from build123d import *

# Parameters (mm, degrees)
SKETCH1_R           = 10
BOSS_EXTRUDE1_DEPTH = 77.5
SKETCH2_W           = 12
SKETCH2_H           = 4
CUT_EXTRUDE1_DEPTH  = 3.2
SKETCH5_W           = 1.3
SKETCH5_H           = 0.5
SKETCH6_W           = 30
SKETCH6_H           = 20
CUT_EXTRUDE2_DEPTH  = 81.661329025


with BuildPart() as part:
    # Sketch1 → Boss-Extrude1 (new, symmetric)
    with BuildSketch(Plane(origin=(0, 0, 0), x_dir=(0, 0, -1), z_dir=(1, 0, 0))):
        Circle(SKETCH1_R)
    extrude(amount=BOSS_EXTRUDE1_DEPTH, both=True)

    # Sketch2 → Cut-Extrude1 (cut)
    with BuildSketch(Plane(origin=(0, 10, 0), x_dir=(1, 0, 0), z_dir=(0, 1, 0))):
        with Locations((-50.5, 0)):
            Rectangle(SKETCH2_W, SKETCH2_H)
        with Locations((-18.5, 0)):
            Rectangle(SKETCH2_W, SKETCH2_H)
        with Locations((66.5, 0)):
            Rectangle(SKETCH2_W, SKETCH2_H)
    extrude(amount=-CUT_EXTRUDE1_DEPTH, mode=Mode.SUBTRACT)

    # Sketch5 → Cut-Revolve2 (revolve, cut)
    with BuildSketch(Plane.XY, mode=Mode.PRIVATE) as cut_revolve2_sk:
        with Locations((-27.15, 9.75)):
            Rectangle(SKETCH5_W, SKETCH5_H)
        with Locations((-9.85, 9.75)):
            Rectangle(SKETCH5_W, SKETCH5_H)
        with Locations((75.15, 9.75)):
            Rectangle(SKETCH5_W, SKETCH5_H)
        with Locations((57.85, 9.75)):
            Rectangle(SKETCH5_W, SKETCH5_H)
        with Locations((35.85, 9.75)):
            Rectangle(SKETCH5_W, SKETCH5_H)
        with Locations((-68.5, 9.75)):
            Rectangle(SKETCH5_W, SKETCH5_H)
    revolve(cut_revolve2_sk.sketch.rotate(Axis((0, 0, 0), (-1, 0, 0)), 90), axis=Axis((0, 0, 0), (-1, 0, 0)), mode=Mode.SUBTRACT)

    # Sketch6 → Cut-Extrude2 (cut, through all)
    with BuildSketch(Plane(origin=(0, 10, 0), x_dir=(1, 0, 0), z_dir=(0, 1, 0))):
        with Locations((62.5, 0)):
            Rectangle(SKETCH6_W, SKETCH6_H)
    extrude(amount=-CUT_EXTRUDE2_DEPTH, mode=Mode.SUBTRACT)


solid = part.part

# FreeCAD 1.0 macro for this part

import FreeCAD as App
import Part
import Sketcher

V = App.Vector
Q = App.Units.Quantity

doc = App.newDocument("Part")
body = doc.addObject("PartDesign::Body", "Body")

sketch1 = body.newObject("Sketcher::SketchObject", "Sketch")
sketch1.AttachmentSupport = (doc.getObject("YZ_Plane"), [""])
sketch1.MapMode = "FlatFace"
sketch1.addGeometry(Part.Circle(V(0, 0, 0), V(0, 0, 1), 10), False)
sketch1.addConstraint([
    Sketcher.Constraint("Coincident", 0, 3, -1, 1),
    Sketcher.Constraint("Diameter", 0, Q("20 mm")),
])
pad1 = body.newObject("PartDesign::Pad", "Pad")
pad1.Profile = sketch1
pad1.Length = 155
pad1.Midplane = True

sketch2 = body.newObject("Sketcher::SketchObject", "Sketch001")
sketch2.AttachmentSupport = (doc.getObject("XZ_Plane"), [""])
sketch2.MapMode = "FlatFace"
sketch2.AttachmentOffset = App.Placement(V(0, 0, -10), App.Rotation())
sketch2.addGeometry([
    Part.LineSegment(V(-56.5, -2, 0), V(-56.5, 2, 0)),
    Part.LineSegment(V(-56.5, 2, 0), V(-44.5, 2, 0)),
    Part.LineSegment(V(-44.5, 2, 0), V(-44.5, -2, 0)),
    Part.LineSegment(V(-44.5, -2, 0), V(-56.5, -2, 0)),
    Part.LineSegment(V(-24.5, -2, 0), V(-24.5, 2, 0)),
    Part.LineSegment(V(-24.5, 2, 0), V(-12.5, 2, 0)),
    Part.LineSegment(V(-12.5, 2, 0), V(-12.5, -2, 0)),
    Part.LineSegment(V(-12.5, -2, 0), V(-24.5, -2, 0)),
    Part.LineSegment(V(60.5, -2, 0), V(60.5, 2, 0)),
    Part.LineSegment(V(60.5, 2, 0), V(72.5, 2, 0)),
    Part.LineSegment(V(72.5, 2, 0), V(72.5, -2, 0)),
    Part.LineSegment(V(72.5, -2, 0), V(60.5, -2, 0)),
], False)
sketch2.addConstraint([
    Sketcher.Constraint("Coincident", 0, 2, 1, 1),
    Sketcher.Constraint("Coincident", 1, 2, 2, 1),
    Sketcher.Constraint("Coincident", 2, 2, 3, 1),
    Sketcher.Constraint("Coincident", 3, 2, 0, 1),
    Sketcher.Constraint("Coincident", 4, 2, 5, 1),
    Sketcher.Constraint("Coincident", 5, 2, 6, 1),
    Sketcher.Constraint("Coincident", 6, 2, 7, 1),
    Sketcher.Constraint("Coincident", 7, 2, 4, 1),
    Sketcher.Constraint("Coincident", 8, 2, 9, 1),
    Sketcher.Constraint("Coincident", 9, 2, 10, 1),
    Sketcher.Constraint("Coincident", 10, 2, 11, 1),
    Sketcher.Constraint("Coincident", 11, 2, 8, 1),
    Sketcher.Constraint("Vertical", 0),
    Sketcher.Constraint("Horizontal", 1),
    Sketcher.Constraint("Vertical", 2),
    Sketcher.Constraint("Horizontal", 3),
    Sketcher.Constraint("Vertical", 4),
    Sketcher.Constraint("Horizontal", 5),
    Sketcher.Constraint("Vertical", 6),
    Sketcher.Constraint("Horizontal", 7),
    Sketcher.Constraint("Vertical", 8),
    Sketcher.Constraint("Horizontal", 9),
    Sketcher.Constraint("Vertical", 10),
    Sketcher.Constraint("Horizontal", 11),
    Sketcher.Constraint("Horizontal", 1, 2, 4, 2),
    Sketcher.Constraint("Horizontal", 3, 2, 6, 2),
    Sketcher.Constraint("Horizontal", 5, 2, 8, 2),
    Sketcher.Constraint("Horizontal", 7, 2, 10, 2),
    Sketcher.Constraint("Equal", 3, 5),
    Sketcher.Constraint("Equal", 7, 9),
    Sketcher.Constraint("DistanceX", 1, 1, 1, 2, Q("12 mm")),
    Sketcher.Constraint("DistanceY", 0, 1, 0, 2, Q("4 mm")),
    Sketcher.Constraint("DistanceY", -1, 1, 0, 2, Q("2 mm")),
    Sketcher.Constraint("DistanceX", 1, 2, 4, 2, Q("20 mm")),
    Sketcher.Constraint("DistanceX", 5, 2, 8, 2, Q("73 mm")),
    Sketcher.Constraint("DistanceX", 0, 2, -1, 1, Q("56.5 mm")),
])
pocket1 = body.newObject("PartDesign::Pocket", "Pocket")
pocket1.Profile = sketch2
pocket1.Length = 3.2
pocket1.Reversed = True

sketch3 = body.newObject("Sketcher::SketchObject", "Sketch002")
sketch3.AttachmentSupport = (doc.getObject("XY_Plane"), [""])
sketch3.MapMode = "FlatFace"
sketch3.addGeometry([
    Part.LineSegment(V(-27.8, 10, 0), V(-27.8, 9.5, 0)),
    Part.LineSegment(V(-27.8, 9.5, 0), V(-26.5, 9.5, 0)),
    Part.LineSegment(V(-26.5, 9.5, 0), V(-26.5, 10, 0)),
    Part.LineSegment(V(-26.5, 10, 0), V(-27.8, 10, 0)),
    Part.LineSegment(V(-10.5, 10, 0), V(-10.5, 9.5, 0)),
    Part.LineSegment(V(-10.5, 9.5, 0), V(-9.2, 9.5, 0)),
    Part.LineSegment(V(-9.2, 9.5, 0), V(-9.2, 10, 0)),
    Part.LineSegment(V(-9.2, 10, 0), V(-10.5, 10, 0)),
    Part.LineSegment(V(74.5, 10, 0), V(74.5, 9.5, 0)),
    Part.LineSegment(V(74.5, 9.5, 0), V(75.8, 9.5, 0)),
    Part.LineSegment(V(75.8, 9.5, 0), V(75.8, 10, 0)),
    Part.LineSegment(V(75.8, 10, 0), V(74.5, 10, 0)),
    Part.LineSegment(V(57.2, 10, 0), V(57.2, 9.5, 0)),
    Part.LineSegment(V(57.2, 9.5, 0), V(58.5, 9.5, 0)),
    Part.LineSegment(V(58.5, 9.5, 0), V(58.5, 10, 0)),
    Part.LineSegment(V(58.5, 10, 0), V(57.2, 10, 0)),
    Part.LineSegment(V(35.2, 10, 0), V(35.2, 9.5, 0)),
    Part.LineSegment(V(35.2, 9.5, 0), V(36.5, 9.5, 0)),
    Part.LineSegment(V(36.5, 9.5, 0), V(36.5, 10, 0)),
    Part.LineSegment(V(36.5, 10, 0), V(35.2, 10, 0)),
    Part.LineSegment(V(-69.2, 10, 0), V(-69.2, 9.5, 0)),
    Part.LineSegment(V(-69.2, 9.5, 0), V(-67.8, 9.5, 0)),
    Part.LineSegment(V(-67.8, 9.5, 0), V(-67.8, 10, 0)),
    Part.LineSegment(V(-67.8, 10, 0), V(-69.2, 10, 0)),
], False)
sketch3.addConstraint([
    Sketcher.Constraint("Coincident", 0, 2, 1, 1),
    Sketcher.Constraint("Coincident", 1, 2, 2, 1),
    Sketcher.Constraint("Coincident", 2, 2, 3, 1),
    Sketcher.Constraint("Coincident", 3, 2, 0, 1),
    Sketcher.Constraint("Coincident", 4, 2, 5, 1),
    Sketcher.Constraint("Coincident", 5, 2, 6, 1),
    Sketcher.Constraint("Coincident", 6, 2, 7, 1),
    Sketcher.Constraint("Coincident", 7, 2, 4, 1),
    Sketcher.Constraint("Coincident", 8, 2, 9, 1),
    Sketcher.Constraint("Coincident", 9, 2, 10, 1),
    Sketcher.Constraint("Coincident", 10, 2, 11, 1),
    Sketcher.Constraint("Coincident", 11, 2, 8, 1),
    Sketcher.Constraint("Coincident", 12, 2, 13, 1),
    Sketcher.Constraint("Coincident", 13, 2, 14, 1),
    Sketcher.Constraint("Coincident", 14, 2, 15, 1),
    Sketcher.Constraint("Coincident", 15, 2, 12, 1),
    Sketcher.Constraint("Coincident", 16, 2, 17, 1),
    Sketcher.Constraint("Coincident", 17, 2, 18, 1),
    Sketcher.Constraint("Coincident", 18, 2, 19, 1),
    Sketcher.Constraint("Coincident", 19, 2, 16, 1),
    Sketcher.Constraint("Coincident", 20, 2, 21, 1),
    Sketcher.Constraint("Coincident", 21, 2, 22, 1),
    Sketcher.Constraint("Coincident", 22, 2, 23, 1),
    Sketcher.Constraint("Coincident", 23, 2, 20, 1),
    Sketcher.Constraint("Vertical", 0),
    Sketcher.Constraint("Horizontal", 1),
    Sketcher.Constraint("Vertical", 2),
    Sketcher.Constraint("Horizontal", 3),
    Sketcher.Constraint("Vertical", 4),
    Sketcher.Constraint("Horizontal", 5),
    Sketcher.Constraint("Vertical", 6),
    Sketcher.Constraint("Horizontal", 7),
    Sketcher.Constraint("Vertical", 8),
    Sketcher.Constraint("Horizontal", 9),
    Sketcher.Constraint("Vertical", 10),
    Sketcher.Constraint("Horizontal", 11),
    Sketcher.Constraint("Vertical", 12),
    Sketcher.Constraint("Horizontal", 13),
    Sketcher.Constraint("Vertical", 14),
    Sketcher.Constraint("Horizontal", 15),
    Sketcher.Constraint("Vertical", 16),
    Sketcher.Constraint("Horizontal", 17),
    Sketcher.Constraint("Vertical", 18),
    Sketcher.Constraint("Horizontal", 19),
    Sketcher.Constraint("Vertical", 20),
    Sketcher.Constraint("Horizontal", 21),
    Sketcher.Constraint("Vertical", 22),
    Sketcher.Constraint("Horizontal", 23),
    Sketcher.Constraint("Horizontal", 1, 2, 4, 2),
    Sketcher.Constraint("Horizontal", 3, 2, 6, 2),
    Sketcher.Constraint("Horizontal", 5, 2, 8, 2),
    Sketcher.Constraint("Horizontal", 7, 2, 10, 2),
    Sketcher.Constraint("Horizontal", 9, 2, 12, 2),
    Sketcher.Constraint("Horizontal", 11, 2, 14, 2),
    Sketcher.Constraint("Horizontal", 13, 2, 16, 2),
    Sketcher.Constraint("Horizontal", 15, 2, 18, 2),
    Sketcher.Constraint("Horizontal", 17, 2, 20, 2),
    Sketcher.Constraint("Horizontal", 19, 2, 22, 2),
    Sketcher.Constraint("Equal", 3, 5),
    Sketcher.Constraint("Equal", 7, 9),
    Sketcher.Constraint("Equal", 11, 13),
    Sketcher.Constraint("Equal", 15, 17),
    Sketcher.Constraint("Equal", 19, 21),
    Sketcher.Constraint("DistanceX", 1, 1, 1, 2, Q("1.3 mm")),
    Sketcher.Constraint("DistanceY", 0, 2, 0, 1, Q("0.5 mm")),
    Sketcher.Constraint("DistanceY", -1, 1, 2, 2, Q("10 mm")),
    Sketcher.Constraint("DistanceX", 1, 2, 4, 2, Q("16 mm")),
    Sketcher.Constraint("DistanceX", 4, 2, 8, 2, Q("85 mm")),
    Sketcher.Constraint("DistanceX", 13, 2, 8, 2, Q("16 mm")),
    Sketcher.Constraint("DistanceX", 16, 2, 12, 2, Q("22 mm")),
    Sketcher.Constraint("DistanceX", 0, 2, -1, 1, Q("27.8 mm")),
    Sketcher.Constraint("DistanceX", 20, 2, -1, 1, Q("69.15 mm")),
])
groove = body.newObject("PartDesign::Groove", "Groove")
groove.Profile = sketch3
groove.ReferenceAxis = (sketch3, ["H_Axis"])
groove.Angle = 360

sketch4 = body.newObject("Sketcher::SketchObject", "Sketch003")
sketch4.AttachmentSupport = (doc.getObject("XZ_Plane"), [""])
sketch4.MapMode = "FlatFace"
sketch4.AttachmentOffset = App.Placement(V(0, 0, -10), App.Rotation())
sketch4.addGeometry([
    Part.LineSegment(V(48, -10, 0), V(48, 10, 0)),
    Part.LineSegment(V(48, 10, 0), V(78, 10, 0)),
    Part.LineSegment(V(78, 10, 0), V(78, -10, 0)),
    Part.LineSegment(V(78, -10, 0), V(48, -10, 0)),
], False)
sketch4.addConstraint([
    Sketcher.Constraint("Coincident", 0, 2, 1, 1),
    Sketcher.Constraint("Coincident", 1, 2, 2, 1),
    Sketcher.Constraint("Coincident", 2, 2, 3, 1),
    Sketcher.Constraint("Coincident", 3, 2, 0, 1),
    Sketcher.Constraint("Vertical", 0),
    Sketcher.Constraint("Horizontal", 1),
    Sketcher.Constraint("Vertical", 2),
    Sketcher.Constraint("Horizontal", 3),
    Sketcher.Constraint("DistanceX", 1, 1, 1, 2, Q("30 mm")),
    Sketcher.Constraint("DistanceY", 0, 1, 0, 2, Q("20 mm")),
    Sketcher.Constraint("DistanceY", -1, 1, 0, 2, Q("10 mm")),
    Sketcher.Constraint("DistanceX", -1, 1, 0, 2, Q("47.5 mm")),
])
pocket2 = body.newObject("PartDesign::Pocket", "Pocket001")
pocket2.Profile = sketch4
pocket2.Type = "ThroughAll"
pocket2.Reversed = True

doc.recompute()
